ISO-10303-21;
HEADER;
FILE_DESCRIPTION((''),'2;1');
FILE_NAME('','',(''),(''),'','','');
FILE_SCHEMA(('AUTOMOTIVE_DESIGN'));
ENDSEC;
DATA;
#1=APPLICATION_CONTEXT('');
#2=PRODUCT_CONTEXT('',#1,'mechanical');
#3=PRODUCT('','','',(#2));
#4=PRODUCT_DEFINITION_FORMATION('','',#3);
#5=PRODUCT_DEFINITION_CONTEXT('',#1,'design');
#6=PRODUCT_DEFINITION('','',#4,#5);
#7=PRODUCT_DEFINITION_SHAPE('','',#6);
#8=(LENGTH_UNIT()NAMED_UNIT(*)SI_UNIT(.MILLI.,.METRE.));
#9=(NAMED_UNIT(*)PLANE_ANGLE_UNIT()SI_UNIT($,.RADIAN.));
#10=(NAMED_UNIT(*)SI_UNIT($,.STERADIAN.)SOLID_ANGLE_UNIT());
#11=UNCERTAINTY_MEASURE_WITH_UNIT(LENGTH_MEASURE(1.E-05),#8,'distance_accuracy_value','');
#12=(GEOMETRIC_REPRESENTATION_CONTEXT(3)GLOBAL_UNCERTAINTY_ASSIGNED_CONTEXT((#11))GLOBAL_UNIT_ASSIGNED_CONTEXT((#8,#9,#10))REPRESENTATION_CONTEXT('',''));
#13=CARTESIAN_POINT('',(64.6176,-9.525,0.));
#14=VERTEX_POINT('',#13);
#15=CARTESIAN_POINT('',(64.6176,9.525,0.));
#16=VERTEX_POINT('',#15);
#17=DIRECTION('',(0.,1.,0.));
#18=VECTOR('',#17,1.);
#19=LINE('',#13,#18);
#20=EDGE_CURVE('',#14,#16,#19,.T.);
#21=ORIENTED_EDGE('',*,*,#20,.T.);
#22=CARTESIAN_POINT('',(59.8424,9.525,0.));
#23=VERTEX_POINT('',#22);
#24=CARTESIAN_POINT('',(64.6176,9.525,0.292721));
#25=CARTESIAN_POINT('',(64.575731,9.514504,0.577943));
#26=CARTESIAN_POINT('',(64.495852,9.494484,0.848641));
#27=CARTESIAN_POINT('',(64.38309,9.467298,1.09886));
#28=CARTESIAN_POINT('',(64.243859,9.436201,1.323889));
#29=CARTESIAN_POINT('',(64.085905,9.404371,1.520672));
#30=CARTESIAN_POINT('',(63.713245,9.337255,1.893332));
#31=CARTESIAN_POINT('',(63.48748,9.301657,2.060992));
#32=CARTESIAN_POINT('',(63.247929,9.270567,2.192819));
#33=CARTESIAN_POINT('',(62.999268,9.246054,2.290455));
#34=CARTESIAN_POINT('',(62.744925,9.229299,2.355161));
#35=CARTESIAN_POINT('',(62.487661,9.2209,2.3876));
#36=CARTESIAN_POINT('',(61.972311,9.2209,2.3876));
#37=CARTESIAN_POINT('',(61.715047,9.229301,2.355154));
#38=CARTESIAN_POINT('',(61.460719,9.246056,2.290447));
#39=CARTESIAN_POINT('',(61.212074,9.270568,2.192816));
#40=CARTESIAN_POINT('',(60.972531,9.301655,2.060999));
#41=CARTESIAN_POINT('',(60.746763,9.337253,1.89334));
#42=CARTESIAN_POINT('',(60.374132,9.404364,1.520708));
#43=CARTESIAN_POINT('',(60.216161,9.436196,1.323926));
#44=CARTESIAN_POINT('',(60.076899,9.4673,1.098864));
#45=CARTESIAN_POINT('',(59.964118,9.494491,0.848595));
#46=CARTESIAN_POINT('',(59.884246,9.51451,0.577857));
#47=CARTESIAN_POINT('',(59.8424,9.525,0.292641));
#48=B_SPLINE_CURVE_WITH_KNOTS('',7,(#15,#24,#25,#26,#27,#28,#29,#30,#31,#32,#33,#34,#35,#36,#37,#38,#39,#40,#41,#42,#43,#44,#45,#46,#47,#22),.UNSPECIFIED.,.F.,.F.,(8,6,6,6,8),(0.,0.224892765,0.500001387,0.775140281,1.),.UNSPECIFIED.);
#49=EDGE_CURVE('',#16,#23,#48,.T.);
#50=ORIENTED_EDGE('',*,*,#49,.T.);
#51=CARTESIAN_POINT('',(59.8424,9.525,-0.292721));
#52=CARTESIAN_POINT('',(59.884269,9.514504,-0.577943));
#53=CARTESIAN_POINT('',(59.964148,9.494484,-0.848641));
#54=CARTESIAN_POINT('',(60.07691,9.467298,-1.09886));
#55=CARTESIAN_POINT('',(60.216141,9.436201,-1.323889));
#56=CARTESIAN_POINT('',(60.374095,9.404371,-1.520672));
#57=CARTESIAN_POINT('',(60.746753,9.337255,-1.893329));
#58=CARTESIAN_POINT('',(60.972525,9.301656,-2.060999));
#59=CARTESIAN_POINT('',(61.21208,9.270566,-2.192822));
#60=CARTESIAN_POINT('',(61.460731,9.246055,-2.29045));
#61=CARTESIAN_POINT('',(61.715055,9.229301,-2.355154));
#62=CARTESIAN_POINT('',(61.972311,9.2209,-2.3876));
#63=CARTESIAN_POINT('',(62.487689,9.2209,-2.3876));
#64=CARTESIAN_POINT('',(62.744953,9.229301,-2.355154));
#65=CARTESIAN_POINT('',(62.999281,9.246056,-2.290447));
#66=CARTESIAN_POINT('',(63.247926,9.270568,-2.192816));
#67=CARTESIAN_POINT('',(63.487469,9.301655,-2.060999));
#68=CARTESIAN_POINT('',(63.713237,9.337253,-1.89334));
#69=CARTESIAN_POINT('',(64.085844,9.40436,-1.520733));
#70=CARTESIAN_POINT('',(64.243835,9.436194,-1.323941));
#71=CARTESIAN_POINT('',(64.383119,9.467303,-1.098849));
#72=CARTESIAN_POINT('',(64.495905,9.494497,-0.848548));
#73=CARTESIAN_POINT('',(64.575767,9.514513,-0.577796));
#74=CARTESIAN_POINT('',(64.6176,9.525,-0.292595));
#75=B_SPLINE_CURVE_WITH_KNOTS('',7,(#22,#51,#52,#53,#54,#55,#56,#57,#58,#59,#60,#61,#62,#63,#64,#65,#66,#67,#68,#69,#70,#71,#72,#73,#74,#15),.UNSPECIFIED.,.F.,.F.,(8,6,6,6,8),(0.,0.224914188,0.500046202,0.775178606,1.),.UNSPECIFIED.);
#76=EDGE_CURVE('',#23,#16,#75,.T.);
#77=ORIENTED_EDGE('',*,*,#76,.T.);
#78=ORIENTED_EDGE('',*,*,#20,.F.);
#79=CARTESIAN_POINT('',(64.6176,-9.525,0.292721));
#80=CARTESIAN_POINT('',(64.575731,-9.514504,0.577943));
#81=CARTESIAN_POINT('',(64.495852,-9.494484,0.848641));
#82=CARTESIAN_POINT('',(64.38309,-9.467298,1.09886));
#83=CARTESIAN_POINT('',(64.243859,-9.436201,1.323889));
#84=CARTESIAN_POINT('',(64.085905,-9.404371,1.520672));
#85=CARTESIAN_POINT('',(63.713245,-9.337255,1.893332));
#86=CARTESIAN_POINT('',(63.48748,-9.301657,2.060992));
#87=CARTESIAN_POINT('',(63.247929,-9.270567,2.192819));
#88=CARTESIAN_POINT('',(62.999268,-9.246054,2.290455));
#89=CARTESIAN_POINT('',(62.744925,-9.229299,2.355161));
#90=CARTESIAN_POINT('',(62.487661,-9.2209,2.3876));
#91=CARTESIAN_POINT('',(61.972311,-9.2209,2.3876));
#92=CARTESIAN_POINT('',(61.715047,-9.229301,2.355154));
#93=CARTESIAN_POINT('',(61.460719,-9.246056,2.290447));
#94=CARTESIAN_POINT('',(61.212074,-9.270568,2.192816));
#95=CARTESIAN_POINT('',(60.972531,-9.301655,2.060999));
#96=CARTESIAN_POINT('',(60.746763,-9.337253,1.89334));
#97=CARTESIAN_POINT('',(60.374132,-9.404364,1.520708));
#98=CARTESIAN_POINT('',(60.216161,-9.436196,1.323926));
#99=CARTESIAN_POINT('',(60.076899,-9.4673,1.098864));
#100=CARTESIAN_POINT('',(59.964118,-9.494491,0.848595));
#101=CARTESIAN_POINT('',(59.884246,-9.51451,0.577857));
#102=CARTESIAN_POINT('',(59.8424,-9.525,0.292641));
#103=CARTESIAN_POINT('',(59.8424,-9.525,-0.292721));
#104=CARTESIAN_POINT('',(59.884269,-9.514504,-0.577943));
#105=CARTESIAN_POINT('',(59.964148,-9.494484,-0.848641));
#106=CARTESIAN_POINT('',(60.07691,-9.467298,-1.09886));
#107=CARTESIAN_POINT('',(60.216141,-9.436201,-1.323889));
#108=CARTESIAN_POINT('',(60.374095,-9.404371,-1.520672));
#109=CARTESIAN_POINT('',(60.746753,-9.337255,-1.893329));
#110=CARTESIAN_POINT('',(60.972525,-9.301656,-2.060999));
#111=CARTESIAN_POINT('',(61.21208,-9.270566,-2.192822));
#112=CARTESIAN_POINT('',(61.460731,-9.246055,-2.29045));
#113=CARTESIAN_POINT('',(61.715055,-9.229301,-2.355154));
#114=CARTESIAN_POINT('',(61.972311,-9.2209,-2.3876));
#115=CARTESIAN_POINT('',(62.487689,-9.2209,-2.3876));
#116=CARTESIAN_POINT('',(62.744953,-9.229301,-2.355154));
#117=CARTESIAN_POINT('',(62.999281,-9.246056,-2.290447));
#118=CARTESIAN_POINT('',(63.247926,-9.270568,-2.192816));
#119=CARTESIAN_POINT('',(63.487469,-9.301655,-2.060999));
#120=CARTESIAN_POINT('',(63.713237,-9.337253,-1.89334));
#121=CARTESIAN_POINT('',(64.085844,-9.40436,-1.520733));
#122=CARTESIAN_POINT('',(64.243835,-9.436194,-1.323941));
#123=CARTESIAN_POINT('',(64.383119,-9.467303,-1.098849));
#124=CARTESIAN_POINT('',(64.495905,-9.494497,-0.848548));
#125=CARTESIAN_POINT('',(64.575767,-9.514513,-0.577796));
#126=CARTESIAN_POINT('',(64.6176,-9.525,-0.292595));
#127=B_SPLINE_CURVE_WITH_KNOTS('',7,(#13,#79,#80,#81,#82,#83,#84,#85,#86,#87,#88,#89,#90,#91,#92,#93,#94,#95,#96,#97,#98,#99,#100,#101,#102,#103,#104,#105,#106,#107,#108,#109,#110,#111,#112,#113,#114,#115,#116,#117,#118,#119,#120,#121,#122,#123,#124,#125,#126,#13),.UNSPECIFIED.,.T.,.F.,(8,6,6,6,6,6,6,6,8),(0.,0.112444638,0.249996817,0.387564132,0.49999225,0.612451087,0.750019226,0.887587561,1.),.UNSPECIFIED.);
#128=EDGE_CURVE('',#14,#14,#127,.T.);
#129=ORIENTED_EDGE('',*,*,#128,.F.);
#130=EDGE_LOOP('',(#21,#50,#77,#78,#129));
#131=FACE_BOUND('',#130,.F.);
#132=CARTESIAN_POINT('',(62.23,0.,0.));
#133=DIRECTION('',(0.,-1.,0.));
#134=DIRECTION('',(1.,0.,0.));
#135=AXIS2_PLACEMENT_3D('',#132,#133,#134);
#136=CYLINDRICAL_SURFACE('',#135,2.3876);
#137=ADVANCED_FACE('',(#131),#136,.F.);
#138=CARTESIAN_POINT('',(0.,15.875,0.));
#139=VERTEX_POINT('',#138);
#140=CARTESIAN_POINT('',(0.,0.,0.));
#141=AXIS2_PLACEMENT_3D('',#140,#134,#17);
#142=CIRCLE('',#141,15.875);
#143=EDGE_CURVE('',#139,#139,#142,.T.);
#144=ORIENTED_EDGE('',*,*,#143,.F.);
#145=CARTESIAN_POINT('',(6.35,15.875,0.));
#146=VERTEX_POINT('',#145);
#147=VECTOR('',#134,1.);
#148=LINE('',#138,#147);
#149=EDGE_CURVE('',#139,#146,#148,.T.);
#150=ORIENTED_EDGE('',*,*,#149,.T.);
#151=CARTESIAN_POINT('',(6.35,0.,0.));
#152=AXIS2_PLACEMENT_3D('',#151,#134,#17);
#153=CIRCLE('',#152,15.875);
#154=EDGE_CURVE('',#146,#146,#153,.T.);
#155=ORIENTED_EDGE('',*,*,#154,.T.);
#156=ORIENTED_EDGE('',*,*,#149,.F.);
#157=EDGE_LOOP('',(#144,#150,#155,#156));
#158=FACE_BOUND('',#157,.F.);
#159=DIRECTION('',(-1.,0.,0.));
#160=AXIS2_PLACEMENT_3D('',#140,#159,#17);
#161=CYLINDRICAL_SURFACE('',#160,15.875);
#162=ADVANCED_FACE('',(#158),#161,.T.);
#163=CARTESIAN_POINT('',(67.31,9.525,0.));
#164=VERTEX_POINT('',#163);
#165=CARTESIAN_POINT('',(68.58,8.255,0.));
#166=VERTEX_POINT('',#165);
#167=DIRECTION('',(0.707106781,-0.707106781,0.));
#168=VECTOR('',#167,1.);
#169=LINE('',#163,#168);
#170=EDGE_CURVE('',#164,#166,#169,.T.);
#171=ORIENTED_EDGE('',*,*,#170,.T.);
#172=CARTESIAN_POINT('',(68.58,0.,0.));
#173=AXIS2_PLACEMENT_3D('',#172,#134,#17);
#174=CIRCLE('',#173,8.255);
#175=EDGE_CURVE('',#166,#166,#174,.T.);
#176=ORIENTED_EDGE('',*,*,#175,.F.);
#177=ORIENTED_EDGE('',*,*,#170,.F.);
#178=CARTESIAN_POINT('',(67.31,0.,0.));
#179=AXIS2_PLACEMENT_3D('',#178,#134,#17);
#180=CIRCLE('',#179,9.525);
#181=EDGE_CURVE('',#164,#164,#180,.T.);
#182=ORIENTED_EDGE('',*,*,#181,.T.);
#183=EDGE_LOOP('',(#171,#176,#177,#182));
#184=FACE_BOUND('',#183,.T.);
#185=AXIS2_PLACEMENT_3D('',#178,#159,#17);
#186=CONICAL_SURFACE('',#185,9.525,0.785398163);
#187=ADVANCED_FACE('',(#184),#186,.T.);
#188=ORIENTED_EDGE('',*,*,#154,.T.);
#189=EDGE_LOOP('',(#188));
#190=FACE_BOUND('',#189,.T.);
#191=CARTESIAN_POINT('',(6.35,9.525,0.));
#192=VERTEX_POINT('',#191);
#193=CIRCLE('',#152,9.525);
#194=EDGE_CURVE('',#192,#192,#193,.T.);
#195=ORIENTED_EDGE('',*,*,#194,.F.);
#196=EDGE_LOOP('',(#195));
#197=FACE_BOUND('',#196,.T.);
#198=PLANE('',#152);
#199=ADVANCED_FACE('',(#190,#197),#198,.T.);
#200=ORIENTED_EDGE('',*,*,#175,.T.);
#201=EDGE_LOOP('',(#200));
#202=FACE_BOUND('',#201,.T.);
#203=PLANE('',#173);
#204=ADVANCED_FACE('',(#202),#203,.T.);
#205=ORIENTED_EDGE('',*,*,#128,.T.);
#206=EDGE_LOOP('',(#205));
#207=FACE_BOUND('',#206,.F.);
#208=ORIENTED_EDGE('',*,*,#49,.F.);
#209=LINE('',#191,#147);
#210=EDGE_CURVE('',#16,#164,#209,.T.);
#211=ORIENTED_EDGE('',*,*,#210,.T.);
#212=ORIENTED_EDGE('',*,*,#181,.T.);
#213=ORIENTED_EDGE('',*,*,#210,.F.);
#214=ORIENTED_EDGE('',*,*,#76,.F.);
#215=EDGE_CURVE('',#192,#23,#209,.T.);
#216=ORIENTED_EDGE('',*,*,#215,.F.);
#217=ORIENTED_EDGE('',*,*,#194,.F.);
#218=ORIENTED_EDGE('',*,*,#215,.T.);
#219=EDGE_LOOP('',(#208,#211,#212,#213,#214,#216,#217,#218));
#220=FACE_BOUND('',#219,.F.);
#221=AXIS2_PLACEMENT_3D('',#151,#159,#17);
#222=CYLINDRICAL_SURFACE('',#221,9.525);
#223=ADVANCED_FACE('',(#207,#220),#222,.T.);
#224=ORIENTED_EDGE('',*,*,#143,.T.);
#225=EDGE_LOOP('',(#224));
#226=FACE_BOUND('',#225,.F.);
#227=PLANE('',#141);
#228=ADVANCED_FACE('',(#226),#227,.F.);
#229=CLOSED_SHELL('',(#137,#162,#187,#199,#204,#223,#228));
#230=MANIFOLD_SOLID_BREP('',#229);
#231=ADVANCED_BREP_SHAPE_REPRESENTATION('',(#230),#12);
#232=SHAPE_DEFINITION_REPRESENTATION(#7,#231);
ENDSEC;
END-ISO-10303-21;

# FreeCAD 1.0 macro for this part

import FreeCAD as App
import Part
import Sketcher
Q = App.Units.Quantity


def edges_at(feature, points):
    """Names of the edges that pass closest to the given points."""
    edges = feature.Shape.Edges
    near = lambda p: min(range(len(edges)), key=lambda i: edges[i].distToShape(Part.Vertex(*p))[0])
    return sorted({f"Edge{near(p) + 1}" for p in points})

doc = App.newDocument("Part")
body = doc.addObject("PartDesign::Body", "Body")

sketch1 = doc.addObject("Sketcher::SketchObject", "Sketch")
body.addObject(sketch1)
sketch1.AttachmentSupport = (doc.YZ_Plane, [""])
sketch1.MapMode = "FlatFace"
sketch1.addGeometry(Part.Circle(App.Vector(0, 0, 0), App.Vector(0, 0, 1), 16), False)
sketch1.addConstraint([
    Sketcher.Constraint("Coincident", 0, 3, -1, 1),
    Sketcher.Constraint("Diameter", 0, Q("1.25 in")),
])
pad1 = doc.addObject("PartDesign::Pad", "Pad")
body.addObject(pad1)
pad1.Profile = sketch1
pad1.Length = Q("0.25 in")

sketch2 = doc.addObject("Sketcher::SketchObject", "Sketch001")
body.addObject(sketch2)
sketch2.AttachmentSupport = (doc.YZ_Plane, [""])
sketch2.MapMode = "FlatFace"
sketch2.AttachmentOffset = App.Placement(App.Vector(0, 0, 0.25 * 25.4), App.Rotation())
sketch2.addGeometry(Part.Circle(App.Vector(0, 0, 0), App.Vector(0, 0, 1), 10), False)
sketch2.addConstraint([
    Sketcher.Constraint("Coincident", 0, 3, -1, 1),
    Sketcher.Constraint("Diameter", 0, Q("0.75 in")),
])
pad2 = doc.addObject("PartDesign::Pad", "Pad001")
body.addObject(pad2)
pad2.Profile = sketch2
pad2.Length = Q("2.45 in")
doc.recompute()

chamfer = doc.addObject("PartDesign::Chamfer", "Chamfer")
body.addObject(chamfer)
chamfer.Base = (pad2, edges_at(pad2, [(68.58, -9.525, 0)]))
chamfer.ChamferType = "Two distances"
chamfer.Size = Q("0.05 in")
chamfer.Size2 = Q("0.05 in")

sketch3 = doc.addObject("Sketcher::SketchObject", "Sketch002")
body.addObject(sketch3)
sketch3.AttachmentSupport = (doc.XZ_Plane, [""])
sketch3.MapMode = "FlatFace"
sketch3.addGeometry(Part.Circle(App.Vector(62.2, 0, 0), App.Vector(0, 0, 1), 2.4), False)
sketch3.addConstraint([
    Sketcher.Constraint("PointOnObject", 0, 3, -1),
    Sketcher.Constraint("Diameter", 0, Q("0.188 in")),
    Sketcher.Constraint("DistanceX", -1, 1, 0, 3, Q("2.45 in")),
])
pocket1 = doc.addObject("PartDesign::Pocket", "Pocket")
body.addObject(pocket1)
pocket1.Profile = sketch3
pocket1.Type = "ThroughAll"
pocket1.Midplane = True

doc.recompute()
